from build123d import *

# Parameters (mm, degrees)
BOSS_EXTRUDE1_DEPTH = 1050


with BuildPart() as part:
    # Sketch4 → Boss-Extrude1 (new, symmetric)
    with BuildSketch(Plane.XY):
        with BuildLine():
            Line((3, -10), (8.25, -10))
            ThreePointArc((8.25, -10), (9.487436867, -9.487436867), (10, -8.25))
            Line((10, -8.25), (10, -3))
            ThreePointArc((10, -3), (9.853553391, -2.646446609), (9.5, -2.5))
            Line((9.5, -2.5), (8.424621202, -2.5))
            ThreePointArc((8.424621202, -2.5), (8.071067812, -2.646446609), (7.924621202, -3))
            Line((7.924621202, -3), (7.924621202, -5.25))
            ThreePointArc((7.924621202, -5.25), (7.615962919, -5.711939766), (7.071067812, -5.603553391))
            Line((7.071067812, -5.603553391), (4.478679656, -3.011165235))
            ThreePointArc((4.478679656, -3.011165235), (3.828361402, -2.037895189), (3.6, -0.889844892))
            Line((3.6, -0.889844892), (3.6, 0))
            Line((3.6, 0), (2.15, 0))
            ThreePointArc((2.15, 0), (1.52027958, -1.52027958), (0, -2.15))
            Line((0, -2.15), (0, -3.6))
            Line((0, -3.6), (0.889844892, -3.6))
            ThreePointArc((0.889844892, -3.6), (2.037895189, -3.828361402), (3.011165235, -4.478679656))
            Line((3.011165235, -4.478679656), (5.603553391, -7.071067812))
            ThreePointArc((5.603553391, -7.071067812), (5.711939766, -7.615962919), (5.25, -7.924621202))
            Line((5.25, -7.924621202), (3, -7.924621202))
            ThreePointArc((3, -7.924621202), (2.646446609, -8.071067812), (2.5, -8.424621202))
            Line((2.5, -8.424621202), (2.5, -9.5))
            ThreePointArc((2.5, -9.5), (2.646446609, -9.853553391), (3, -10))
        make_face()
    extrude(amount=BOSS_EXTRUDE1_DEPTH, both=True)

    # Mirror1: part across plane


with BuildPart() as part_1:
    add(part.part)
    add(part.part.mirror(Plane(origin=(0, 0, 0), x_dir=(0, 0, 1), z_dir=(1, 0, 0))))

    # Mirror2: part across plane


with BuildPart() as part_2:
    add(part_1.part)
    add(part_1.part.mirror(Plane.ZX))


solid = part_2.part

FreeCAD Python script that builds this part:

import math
import FreeCAD as App
import Part
import Sketcher
from FreeCAD import Vector
Q = App.Units.Quantity

doc = App.newDocument("Part")
body = doc.addObject("PartDesign::Body", "Body")

# Sketch on XY plane
sketch1 = body.newObject("Sketcher::SketchObject", "Sketch")
sketch1.AttachmentSupport = (doc.getObject("XY_Plane"), [""])
sketch1.MapMode = "FlatFace"
sketch1.addGeometry([
    Part.LineSegment(Vector(3, -10, 0), Vector(8.25, -10, 0)),  # 0
    Part.ArcOfCircle(Part.Circle(Vector(8.25, -8.25, 0), Vector(0, 0, 1), 1.75), math.radians(-90), math.radians(0)),  # 1
    Part.LineSegment(Vector(10, -8.25, 0), Vector(10, -3, 0)),  # 2
    Part.ArcOfCircle(Part.Circle(Vector(9.5, -3, 0), Vector(0, 0, 1), 0.5), math.radians(0), math.radians(90)),  # 3
    Part.LineSegment(Vector(9.5, -2.5, 0), Vector(8.42, -2.5, 0)),  # 4
    Part.ArcOfCircle(Part.Circle(Vector(8.42, -3, 0), Vector(0, 0, 1), 0.5), math.radians(90), math.radians(180)),  # 5
    Part.LineSegment(Vector(7.92, -3, 0), Vector(7.92, -5.25, 0)),  # 6
    Part.ArcOfCircle(Part.Circle(Vector(7.42, -5.25, 0), Vector(0, 0, 1), 0.5), math.radians(-135), math.radians(0)),  # 7
    Part.LineSegment(Vector(7.07, -5.6, 0), Vector(4.48, -3.01, 0)),  # 8
    Part.ArcOfCircle(Part.Circle(Vector(6.6, -0.89, 0), Vector(0, 0, 1), 3), math.radians(180), math.radians(225)),  # 9
    Part.LineSegment(Vector(3.6, -0.89, 0), Vector(3.6, 0, 0)),  # 10
    Part.LineSegment(Vector(3.6, 0, 0), Vector(2.15, 0, 0)),  # 11
    Part.ArcOfCircle(Part.Circle(Vector(0, 0, 0), Vector(0, 0, 1), 2.15), math.radians(-90), math.radians(0)),  # 12
    Part.LineSegment(Vector(0, -2.15, 0), Vector(0, -3.6, 0)),  # 13
    Part.LineSegment(Vector(0, -3.6, 0), Vector(0.89, -3.6, 0)),  # 14
    Part.ArcOfCircle(Part.Circle(Vector(0.89, -6.6, 0), Vector(0, 0, 1), 3), math.radians(45), math.radians(90)),  # 15
    Part.LineSegment(Vector(3.01, -4.48, 0), Vector(5.6, -7.07, 0)),  # 16
    Part.ArcOfCircle(Part.Circle(Vector(5.25, -7.42, 0), Vector(0, 0, 1), 0.5), math.radians(-90), math.radians(45)),  # 17
    Part.LineSegment(Vector(5.25, -7.92, 0), Vector(3, -7.92, 0)),  # 18
    Part.ArcOfCircle(Part.Circle(Vector(3, -8.42, 0), Vector(0, 0, 1), 0.5), math.radians(90), math.radians(180)),  # 19
    Part.LineSegment(Vector(2.5, -8.42, 0), Vector(2.5, -9.5, 0)),  # 20
    Part.ArcOfCircle(Part.Circle(Vector(3, -9.5, 0), Vector(0, 0, 1), 0.5), math.radians(180), math.radians(270)),  # 21
], False)
sketch1.addConstraint([
    Sketcher.Constraint("Tangent", 0, 2, 1, 1),
    Sketcher.Constraint("Tangent", 1, 2, 2, 1),
    Sketcher.Constraint("Tangent", 2, 2, 3, 1),
    Sketcher.Constraint("Tangent", 3, 2, 4, 1),
    Sketcher.Constraint("Tangent", 4, 2, 5, 1),
    Sketcher.Constraint("Tangent", 5, 2, 6, 1),
    Sketcher.Constraint("Tangent", 6, 2, 7, 2),
    Sketcher.Constraint("Tangent", 7, 1, 8, 1),
    Sketcher.Constraint("Tangent", 8, 2, 9, 2),
    Sketcher.Constraint("Tangent", 9, 1, 10, 1),
    Sketcher.Constraint("Coincident", 10, 2, 11, 1),
    Sketcher.Constraint("Coincident", 11, 2, 12, 2),
    Sketcher.Constraint("Coincident", 12, 1, 13, 1),
    Sketcher.Constraint("Coincident", 13, 2, 14, 1),
    Sketcher.Constraint("Tangent", 14, 2, 15, 2),
    Sketcher.Constraint("Tangent", 15, 1, 16, 1),
    Sketcher.Constraint("Tangent", 16, 2, 17, 2),
    Sketcher.Constraint("Tangent", 17, 1, 18, 1),
    Sketcher.Constraint("Tangent", 18, 2, 19, 1),
    Sketcher.Constraint("Tangent", 19, 2, 20, 1),
    Sketcher.Constraint("Tangent", 20, 2, 21, 1),
    Sketcher.Constraint("Tangent", 21, 2, 0, 1),
    Sketcher.Constraint("Horizontal", 0),
    Sketcher.Constraint("Vertical", 2),
    Sketcher.Constraint("Horizontal", 4),
    Sketcher.Constraint("Vertical", 6),
    Sketcher.Constraint("Vertical", 10),
    Sketcher.Constraint("Horizontal", 11),
    Sketcher.Constraint("Vertical", 13),
    Sketcher.Constraint("Horizontal", 14),
    Sketcher.Constraint("Horizontal", 18),
    Sketcher.Constraint("Vertical", 20),
    Sketcher.Constraint("Coincident", 12, 3, -1, 1),
    Sketcher.Constraint("Equal", 3, 5),
    Sketcher.Constraint("Equal", 5, 7),
    Sketcher.Constraint("Equal", 9, 15),
    Sketcher.Constraint("Equal", 7, 17),
    Sketcher.Constraint("Equal", 17, 19),
    Sketcher.Constraint("Equal", 19, 21),
    Sketcher.Constraint("PointOnObject", 10, 2, -1),
    Sketcher.Constraint("PointOnObject", 12, 1, -2),
    Sketcher.Constraint("Parallel", 8, 16),
    Sketcher.Constraint("Equal", 0, 2),
    Sketcher.Constraint("Equal", 18, 6),
    Sketcher.Constraint("Equal", 14, 10),
    Sketcher.Constraint("Equal", 11, 13),
    Sketcher.Constraint("Equal", 4, 20),
    Sketcher.Constraint("Equal", 8, 16),
    Sketcher.Constraint("Radius", 9, Q("3 mm")),
    Sketcher.Constraint("Radius", 3, Q("0.5 mm")),
    Sketcher.Constraint("Radius", 1, Q("1.75 mm")),
    Sketcher.Constraint("Radius", 12, Q("2.15 mm")),
    Sketcher.Constraint("DistanceY", 3, 3, -1, 1, Q("3 mm")),
    Sketcher.Constraint("DistanceY", 0, 2, -1, 1, Q("10 mm")),
    Sketcher.Constraint("DistanceY", 1, 3, 7, 3, Q("3 mm")),
    Sketcher.Constraint("DistanceX", 11, 2, 11, 1, Q("1.45 mm")),
    Sketcher.Constraint("DistanceX", 4, 2, 4, 1, Q("1.075379 mm")),
])
pad1 = body.newObject("PartDesign::Pad", "Pad")
pad1.Profile = sketch1
pad1.Length = 2100
pad1.Midplane = True
body2 = doc.addObject("PartDesign::Body", "Body001")
doc.recompute()

body2.BaseFeature = body
doc.recompute()

mirroring = doc.addObject("Part::Mirroring", "Mirroring")
mirroring.Source = body
mirroring.Base = Vector(0, 0, 0)
mirroring.Normal = Vector(1, 0, 0)
body3 = doc.addObject("PartDesign::Body", "Body002")
body3.BaseFeature = mirroring
boolean = body2.newObject("PartDesign::Boolean", "Boolean")
boolean.Type = "Fuse"
boolean.addObjects([body3])
doc.recompute()
body4 = doc.addObject("PartDesign::Body", "Body003")
doc.recompute()

body4.BaseFeature = body2
doc.recompute()

mirroring2 = doc.addObject("Part::Mirroring", "Mirroring001")
mirroring2.Source = body2
mirroring2.Base = Vector(0, 0, 0)
mirroring2.Normal = Vector(0, 1, 0)
body5 = doc.addObject("PartDesign::Body", "Body004")
body5.BaseFeature = mirroring2
boolean2 = body4.newObject("PartDesign::Boolean", "Boolean001")
boolean2.Type = "Fuse"
boolean2.addObjects([body5])
doc.recompute()
mirroring.Visibility = False
mirroring2.Visibility = False

doc.recompute()
